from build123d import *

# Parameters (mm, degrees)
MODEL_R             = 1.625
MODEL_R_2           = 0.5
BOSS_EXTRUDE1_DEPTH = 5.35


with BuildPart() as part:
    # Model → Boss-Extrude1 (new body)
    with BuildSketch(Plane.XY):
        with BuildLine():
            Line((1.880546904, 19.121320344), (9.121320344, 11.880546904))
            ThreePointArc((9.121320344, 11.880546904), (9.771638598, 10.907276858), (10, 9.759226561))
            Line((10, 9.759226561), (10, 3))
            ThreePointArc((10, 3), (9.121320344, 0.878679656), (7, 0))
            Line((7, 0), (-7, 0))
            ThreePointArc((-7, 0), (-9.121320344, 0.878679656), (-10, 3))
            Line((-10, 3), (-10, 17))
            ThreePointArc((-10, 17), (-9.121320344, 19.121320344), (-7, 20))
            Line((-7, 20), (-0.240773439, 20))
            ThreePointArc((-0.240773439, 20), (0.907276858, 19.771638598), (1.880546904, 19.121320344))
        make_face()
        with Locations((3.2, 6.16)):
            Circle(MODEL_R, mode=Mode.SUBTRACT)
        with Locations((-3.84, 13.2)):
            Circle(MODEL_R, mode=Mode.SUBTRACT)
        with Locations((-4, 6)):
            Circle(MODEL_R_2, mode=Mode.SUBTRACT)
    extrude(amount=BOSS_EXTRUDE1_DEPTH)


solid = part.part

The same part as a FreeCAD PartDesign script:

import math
import FreeCAD as App
import Part
import Sketcher
Q = App.Units.Quantity

doc = App.newDocument("Part")
body = doc.addObject("PartDesign::Body", "Body")

sketch1 = doc.addObject("Sketcher::SketchObject", "Sketch")
body.addObject(sketch1)
sketch1.AttachmentSupport = (doc.XY_Plane, [""])
sketch1.MapMode = "FlatFace"
sketch1.addGeometry([
    Part.LineSegment(App.Vector(9.1, 11.9, 0), App.Vector(1.9, 19.1, 0)),
    Part.ArcOfCircle(Part.Circle(App.Vector(-0.2, 17, 0), App.Vector(0, 0, 1), 3), math.radians(45), math.radians(90)),
    Part.LineSegment(App.Vector(-0.2, 20, 0), App.Vector(-7, 20, 0)),
    Part.ArcOfCircle(Part.Circle(App.Vector(-7, 17, 0), App.Vector(0, 0, 1), 3), math.radians(90), math.radians(180)),
    Part.LineSegment(App.Vector(-10, 17, 0), App.Vector(-10, 3, 0)),
    Part.ArcOfCircle(Part.Circle(App.Vector(-7, 3, 0), App.Vector(0, 0, 1), 3), math.radians(180), math.radians(270)),
    Part.LineSegment(App.Vector(-7, 0, 0), App.Vector(7, 0, 0)),
    Part.ArcOfCircle(Part.Circle(App.Vector(7, 3, 0), App.Vector(0, 0, 1), 3), math.radians(-90), math.radians(0)),
    Part.LineSegment(App.Vector(10, 3, 0), App.Vector(10, 9.8, 0)),
    Part.ArcOfCircle(Part.Circle(App.Vector(7, 9.8, 0), App.Vector(0, 0, 1), 3), math.radians(0), math.radians(45)),
    Part.Circle(App.Vector(3.2, 6.2, 0), App.Vector(0, 0, 1), 1.6),
    Part.Circle(App.Vector(-4, 6, 0), App.Vector(0, 0, 1), 0.5),
    Part.Circle(App.Vector(-3.8, 13.2, 0), App.Vector(0, 0, 1), 1.6),
], False)
sketch1.addConstraint([
    Sketcher.Constraint("Tangent", 0, 2, 1, 1),
    Sketcher.Constraint("Tangent", 1, 2, 2, 1),
    Sketcher.Constraint("Tangent", 2, 2, 3, 1),
    Sketcher.Constraint("Tangent", 3, 2, 4, 1),
    Sketcher.Constraint("Tangent", 4, 2, 5, 1),
    Sketcher.Constraint("Tangent", 5, 2, 6, 1),
    Sketcher.Constraint("Tangent", 6, 2, 7, 1),
    Sketcher.Constraint("Tangent", 7, 2, 8, 1),
    Sketcher.Constraint("Tangent", 8, 2, 9, 1),
    Sketcher.Constraint("Tangent", 9, 2, 0, 1),
    Sketcher.Constraint("Horizontal", 2),
    Sketcher.Constraint("Vertical", 4),
    Sketcher.Constraint("Horizontal", 6),
    Sketcher.Constraint("Vertical", 8),
    Sketcher.Constraint("Equal", 1, 3),
    Sketcher.Constraint("Equal", 3, 5),
    Sketcher.Constraint("Equal", 5, 7),
    Sketcher.Constraint("Equal", 7, 9),
    Sketcher.Constraint("Equal", 10, 12),
    Sketcher.Constraint("Symmetric", 5, 2, 6, 2, -1, 1),
    Sketcher.Constraint("Equal", 6, 4),
    Sketcher.Constraint("Equal", 2, 8),
    Sketcher.Constraint("Diameter", 11, Q("1 mm")),
    Sketcher.Constraint("Radius", 1, Q("3 mm")),
    Sketcher.Constraint("Diameter", 10, Q("3.25 mm")),
    Sketcher.Constraint("DistanceX", 6, 1, 6, 2, Q("14 mm")),
    Sketcher.Constraint("DistanceX", 11, 3, -1, 1, Q("4 mm")),
    Sketcher.Constraint("DistanceY", -1, 1, 11, 3, Q("6 mm")),
    Sketcher.Constraint("DistanceX", -1, 1, 10, 3, Q("3.2 mm")),
    Sketcher.Constraint("DistanceY", -1, 1, 12, 3, Q("13.2 mm")),
    Sketcher.Constraint("Distance", 0, Q("10.24 mm")),
    Sketcher.Constraint("DistanceY", -1, 1, 10, 3, Q("6.16 mm")),
    Sketcher.Constraint("DistanceX", 12, 3, -1, 1, Q("3.84 mm")),
])
pad1 = doc.addObject("PartDesign::Pad", "Pad")
body.addObject(pad1)
pad1.Profile = sketch1
pad1.Length = 5.35

doc.recompute()
